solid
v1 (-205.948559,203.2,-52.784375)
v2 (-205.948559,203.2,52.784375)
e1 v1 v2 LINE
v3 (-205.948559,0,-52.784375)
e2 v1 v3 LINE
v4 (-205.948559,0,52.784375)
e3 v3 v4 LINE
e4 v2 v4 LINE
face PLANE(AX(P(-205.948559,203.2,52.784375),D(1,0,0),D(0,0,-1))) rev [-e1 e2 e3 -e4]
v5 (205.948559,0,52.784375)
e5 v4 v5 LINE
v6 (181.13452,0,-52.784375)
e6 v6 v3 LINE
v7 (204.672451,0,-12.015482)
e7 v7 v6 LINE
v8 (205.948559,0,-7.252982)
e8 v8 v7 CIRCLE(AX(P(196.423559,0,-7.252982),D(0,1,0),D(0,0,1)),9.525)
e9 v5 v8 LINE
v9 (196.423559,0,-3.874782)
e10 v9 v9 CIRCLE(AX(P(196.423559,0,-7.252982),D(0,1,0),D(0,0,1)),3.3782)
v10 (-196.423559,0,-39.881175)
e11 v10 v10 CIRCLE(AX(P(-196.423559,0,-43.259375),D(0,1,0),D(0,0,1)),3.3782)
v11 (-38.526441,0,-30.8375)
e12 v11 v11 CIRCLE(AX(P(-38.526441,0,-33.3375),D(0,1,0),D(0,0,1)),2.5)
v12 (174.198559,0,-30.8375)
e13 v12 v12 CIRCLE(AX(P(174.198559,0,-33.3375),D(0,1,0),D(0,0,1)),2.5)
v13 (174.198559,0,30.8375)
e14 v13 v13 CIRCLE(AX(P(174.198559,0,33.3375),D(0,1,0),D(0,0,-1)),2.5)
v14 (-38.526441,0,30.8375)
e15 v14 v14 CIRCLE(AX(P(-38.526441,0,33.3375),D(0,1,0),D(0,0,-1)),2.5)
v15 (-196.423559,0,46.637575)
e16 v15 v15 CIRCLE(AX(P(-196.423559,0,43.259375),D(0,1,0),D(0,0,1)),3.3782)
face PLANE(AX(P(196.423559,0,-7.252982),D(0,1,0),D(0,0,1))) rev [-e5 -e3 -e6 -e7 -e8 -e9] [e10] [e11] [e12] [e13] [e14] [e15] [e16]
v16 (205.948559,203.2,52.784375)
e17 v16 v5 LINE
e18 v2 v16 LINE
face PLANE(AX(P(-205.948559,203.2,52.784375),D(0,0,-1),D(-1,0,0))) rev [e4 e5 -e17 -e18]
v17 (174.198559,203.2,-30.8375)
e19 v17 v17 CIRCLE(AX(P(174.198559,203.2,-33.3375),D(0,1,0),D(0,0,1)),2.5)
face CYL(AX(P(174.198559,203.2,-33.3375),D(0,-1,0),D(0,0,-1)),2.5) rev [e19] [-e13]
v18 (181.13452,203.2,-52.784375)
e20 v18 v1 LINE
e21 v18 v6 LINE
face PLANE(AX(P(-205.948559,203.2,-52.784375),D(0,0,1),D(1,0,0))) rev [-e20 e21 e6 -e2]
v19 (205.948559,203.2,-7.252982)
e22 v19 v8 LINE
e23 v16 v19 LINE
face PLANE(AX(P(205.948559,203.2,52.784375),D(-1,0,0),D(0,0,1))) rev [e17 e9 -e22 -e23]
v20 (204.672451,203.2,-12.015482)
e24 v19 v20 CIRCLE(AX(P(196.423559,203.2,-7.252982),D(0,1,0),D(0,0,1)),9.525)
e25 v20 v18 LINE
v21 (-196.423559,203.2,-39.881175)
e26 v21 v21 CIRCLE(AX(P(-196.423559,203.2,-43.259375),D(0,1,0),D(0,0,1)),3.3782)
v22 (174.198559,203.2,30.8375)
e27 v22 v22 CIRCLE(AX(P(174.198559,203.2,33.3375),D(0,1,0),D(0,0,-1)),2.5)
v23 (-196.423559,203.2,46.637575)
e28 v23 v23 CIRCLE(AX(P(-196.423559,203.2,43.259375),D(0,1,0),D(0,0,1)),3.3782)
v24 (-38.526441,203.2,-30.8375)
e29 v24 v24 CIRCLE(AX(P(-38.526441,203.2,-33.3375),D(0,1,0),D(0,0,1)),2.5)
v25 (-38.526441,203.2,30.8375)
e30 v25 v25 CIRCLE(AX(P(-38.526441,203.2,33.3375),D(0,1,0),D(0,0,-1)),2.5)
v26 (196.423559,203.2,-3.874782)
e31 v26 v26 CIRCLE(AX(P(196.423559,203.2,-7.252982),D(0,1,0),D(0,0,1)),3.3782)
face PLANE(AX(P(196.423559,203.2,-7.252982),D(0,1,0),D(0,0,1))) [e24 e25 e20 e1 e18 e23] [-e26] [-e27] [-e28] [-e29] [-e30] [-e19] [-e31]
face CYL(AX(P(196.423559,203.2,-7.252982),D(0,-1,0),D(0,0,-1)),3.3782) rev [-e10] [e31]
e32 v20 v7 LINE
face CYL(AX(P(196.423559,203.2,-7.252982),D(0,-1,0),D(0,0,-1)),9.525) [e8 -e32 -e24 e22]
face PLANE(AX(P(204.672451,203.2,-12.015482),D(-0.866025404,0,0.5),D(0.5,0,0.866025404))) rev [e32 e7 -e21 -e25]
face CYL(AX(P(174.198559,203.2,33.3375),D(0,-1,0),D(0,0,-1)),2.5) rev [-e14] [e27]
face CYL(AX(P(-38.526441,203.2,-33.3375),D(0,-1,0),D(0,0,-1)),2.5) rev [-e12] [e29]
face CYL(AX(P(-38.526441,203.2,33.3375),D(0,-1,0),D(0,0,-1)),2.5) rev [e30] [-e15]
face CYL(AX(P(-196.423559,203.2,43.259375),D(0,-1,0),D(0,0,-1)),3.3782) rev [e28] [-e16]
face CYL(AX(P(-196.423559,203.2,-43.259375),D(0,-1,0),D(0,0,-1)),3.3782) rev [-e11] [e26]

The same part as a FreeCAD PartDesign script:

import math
import FreeCAD as App
import Part
import Sketcher
from FreeCAD import Vector
Q = App.Units.Quantity

doc = App.newDocument("Part")
body = doc.addObject("PartDesign::Body", "Body")

# Sketch on XZ plane
sketch1 = body.newObject("Sketcher::SketchObject", "Sketch")
sketch1.AttachmentSupport = (doc.getObject("XZ_Plane"), [""])
sketch1.MapMode = "FlatFace"
sketch1.addGeometry([
    Part.LineSegment(Vector(-205.9, 52.8, 0), Vector(205.9, 52.8, 0)),  # 0
    Part.LineSegment(Vector(205.9, 52.8, 0), Vector(205.9, -7.3, 0)),  # 1
    Part.ArcOfCircle(Part.Circle(Vector(196.4, -7.3, 0), Vector(0, 0, 1), 9.5), math.radians(-30), math.radians(0)),  # 2
    Part.LineSegment(Vector(204.7, -12, 0), Vector(181.1, -52.8, 0)),  # 3
    Part.LineSegment(Vector(181.1, -52.8, 0), Vector(-205.9, -52.8, 0)),  # 4
    Part.LineSegment(Vector(-205.9, -52.8, 0), Vector(-205.9, 52.8, 0)),  # 5
    Part.Circle(Vector(-196.4, 43.3, 0), Vector(0, 0, 1), 3.4),  # 6
    Part.Circle(Vector(-38.5, 33.3, 0), Vector(0, 0, 1), 2.5),  # 7
    Part.Circle(Vector(174.2, 33.3, 0), Vector(0, 0, 1), 2.5),  # 8
    Part.Circle(Vector(-196.4, -43.3, 0), Vector(0, 0, 1), 3.4),  # 9
    Part.Circle(Vector(-38.5, -33.3, 0), Vector(0, 0, 1), 2.5),  # 10
    Part.Circle(Vector(196.4, -7.3, 0), Vector(0, 0, 1), 3.4),  # 11
    Part.Circle(Vector(174.2, -33.3, 0), Vector(0, 0, 1), 2.5),  # 12
], False)
sketch1.addConstraint([
    Sketcher.Constraint("Coincident", 0, 2, 1, 1),
    Sketcher.Constraint("Tangent", 1, 2, 2, 2),
    Sketcher.Constraint("Tangent", 2, 1, 3, 1),
    Sketcher.Constraint("Coincident", 3, 2, 4, 1),
    Sketcher.Constraint("Coincident", 4, 2, 5, 1),
    Sketcher.Constraint("Coincident", 5, 2, 0, 1),
    Sketcher.Constraint("Horizontal", 0),
    Sketcher.Constraint("Vertical", 1),
    Sketcher.Constraint("Horizontal", 4),
    Sketcher.Constraint("Vertical", 5),
    Sketcher.Constraint("Coincident", 11, 3, 2, 3),
    Sketcher.Constraint("Equal", 7, 8),
    Sketcher.Constraint("Equal", 6, 9),
    Sketcher.Constraint("Equal", 8, 10),
    Sketcher.Constraint("Equal", 9, 11),
    Sketcher.Constraint("Equal", 10, 12),
    Sketcher.Constraint("Symmetric", 0, 2, 4, 2, -1, 1),
    Sketcher.Constraint("Symmetric", 6, 3, 9, 3, -1),
    Sketcher.Constraint("Symmetric", 7, 3, 10, 3, -1),
    Sketcher.Constraint("Symmetric", 8, 3, 12, 3, -1),
    Sketcher.Constraint("Horizontal", 7, 3, 8, 3),
    Sketcher.Constraint("Diameter", 6, Q("0.266 in")),
    Sketcher.Constraint("Angle", 3, Q("-120 deg")),
    Sketcher.Constraint("Radius", 2, Q("0.375 in")),
    Sketcher.Constraint("Diameter", 7, 5.0),
    Sketcher.Constraint("DistanceY", 5, 1, 5, 2, Q("4.15625 in")),
    Sketcher.Constraint("DistanceX", 7, 3, 2, 3, Q("9.25 in")),
    Sketcher.Constraint("DistanceX", 8, 3, 0, 2, Q("1.25 in")),
    Sketcher.Constraint("DistanceY", -1, 1, 6, 3, Q("1.703125 in")),
    Sketcher.Constraint("DistanceY", -1, 1, 7, 3, Q("1.3125 in")),
    Sketcher.Constraint("DistanceX", 4, 2, 9, 3, Q("0.375 in")),
    Sketcher.Constraint("DistanceX", 0, 1, 0, 2, 411.897118),
    Sketcher.Constraint("DistanceX", 4, 2, 4, 1, 387.083079),
])
pad1 = body.newObject("PartDesign::Pad", "Pad")
pad1.Profile = sketch1
pad1.Length = Q("8 in")
pad1.Reversed = True

doc.recompute()
